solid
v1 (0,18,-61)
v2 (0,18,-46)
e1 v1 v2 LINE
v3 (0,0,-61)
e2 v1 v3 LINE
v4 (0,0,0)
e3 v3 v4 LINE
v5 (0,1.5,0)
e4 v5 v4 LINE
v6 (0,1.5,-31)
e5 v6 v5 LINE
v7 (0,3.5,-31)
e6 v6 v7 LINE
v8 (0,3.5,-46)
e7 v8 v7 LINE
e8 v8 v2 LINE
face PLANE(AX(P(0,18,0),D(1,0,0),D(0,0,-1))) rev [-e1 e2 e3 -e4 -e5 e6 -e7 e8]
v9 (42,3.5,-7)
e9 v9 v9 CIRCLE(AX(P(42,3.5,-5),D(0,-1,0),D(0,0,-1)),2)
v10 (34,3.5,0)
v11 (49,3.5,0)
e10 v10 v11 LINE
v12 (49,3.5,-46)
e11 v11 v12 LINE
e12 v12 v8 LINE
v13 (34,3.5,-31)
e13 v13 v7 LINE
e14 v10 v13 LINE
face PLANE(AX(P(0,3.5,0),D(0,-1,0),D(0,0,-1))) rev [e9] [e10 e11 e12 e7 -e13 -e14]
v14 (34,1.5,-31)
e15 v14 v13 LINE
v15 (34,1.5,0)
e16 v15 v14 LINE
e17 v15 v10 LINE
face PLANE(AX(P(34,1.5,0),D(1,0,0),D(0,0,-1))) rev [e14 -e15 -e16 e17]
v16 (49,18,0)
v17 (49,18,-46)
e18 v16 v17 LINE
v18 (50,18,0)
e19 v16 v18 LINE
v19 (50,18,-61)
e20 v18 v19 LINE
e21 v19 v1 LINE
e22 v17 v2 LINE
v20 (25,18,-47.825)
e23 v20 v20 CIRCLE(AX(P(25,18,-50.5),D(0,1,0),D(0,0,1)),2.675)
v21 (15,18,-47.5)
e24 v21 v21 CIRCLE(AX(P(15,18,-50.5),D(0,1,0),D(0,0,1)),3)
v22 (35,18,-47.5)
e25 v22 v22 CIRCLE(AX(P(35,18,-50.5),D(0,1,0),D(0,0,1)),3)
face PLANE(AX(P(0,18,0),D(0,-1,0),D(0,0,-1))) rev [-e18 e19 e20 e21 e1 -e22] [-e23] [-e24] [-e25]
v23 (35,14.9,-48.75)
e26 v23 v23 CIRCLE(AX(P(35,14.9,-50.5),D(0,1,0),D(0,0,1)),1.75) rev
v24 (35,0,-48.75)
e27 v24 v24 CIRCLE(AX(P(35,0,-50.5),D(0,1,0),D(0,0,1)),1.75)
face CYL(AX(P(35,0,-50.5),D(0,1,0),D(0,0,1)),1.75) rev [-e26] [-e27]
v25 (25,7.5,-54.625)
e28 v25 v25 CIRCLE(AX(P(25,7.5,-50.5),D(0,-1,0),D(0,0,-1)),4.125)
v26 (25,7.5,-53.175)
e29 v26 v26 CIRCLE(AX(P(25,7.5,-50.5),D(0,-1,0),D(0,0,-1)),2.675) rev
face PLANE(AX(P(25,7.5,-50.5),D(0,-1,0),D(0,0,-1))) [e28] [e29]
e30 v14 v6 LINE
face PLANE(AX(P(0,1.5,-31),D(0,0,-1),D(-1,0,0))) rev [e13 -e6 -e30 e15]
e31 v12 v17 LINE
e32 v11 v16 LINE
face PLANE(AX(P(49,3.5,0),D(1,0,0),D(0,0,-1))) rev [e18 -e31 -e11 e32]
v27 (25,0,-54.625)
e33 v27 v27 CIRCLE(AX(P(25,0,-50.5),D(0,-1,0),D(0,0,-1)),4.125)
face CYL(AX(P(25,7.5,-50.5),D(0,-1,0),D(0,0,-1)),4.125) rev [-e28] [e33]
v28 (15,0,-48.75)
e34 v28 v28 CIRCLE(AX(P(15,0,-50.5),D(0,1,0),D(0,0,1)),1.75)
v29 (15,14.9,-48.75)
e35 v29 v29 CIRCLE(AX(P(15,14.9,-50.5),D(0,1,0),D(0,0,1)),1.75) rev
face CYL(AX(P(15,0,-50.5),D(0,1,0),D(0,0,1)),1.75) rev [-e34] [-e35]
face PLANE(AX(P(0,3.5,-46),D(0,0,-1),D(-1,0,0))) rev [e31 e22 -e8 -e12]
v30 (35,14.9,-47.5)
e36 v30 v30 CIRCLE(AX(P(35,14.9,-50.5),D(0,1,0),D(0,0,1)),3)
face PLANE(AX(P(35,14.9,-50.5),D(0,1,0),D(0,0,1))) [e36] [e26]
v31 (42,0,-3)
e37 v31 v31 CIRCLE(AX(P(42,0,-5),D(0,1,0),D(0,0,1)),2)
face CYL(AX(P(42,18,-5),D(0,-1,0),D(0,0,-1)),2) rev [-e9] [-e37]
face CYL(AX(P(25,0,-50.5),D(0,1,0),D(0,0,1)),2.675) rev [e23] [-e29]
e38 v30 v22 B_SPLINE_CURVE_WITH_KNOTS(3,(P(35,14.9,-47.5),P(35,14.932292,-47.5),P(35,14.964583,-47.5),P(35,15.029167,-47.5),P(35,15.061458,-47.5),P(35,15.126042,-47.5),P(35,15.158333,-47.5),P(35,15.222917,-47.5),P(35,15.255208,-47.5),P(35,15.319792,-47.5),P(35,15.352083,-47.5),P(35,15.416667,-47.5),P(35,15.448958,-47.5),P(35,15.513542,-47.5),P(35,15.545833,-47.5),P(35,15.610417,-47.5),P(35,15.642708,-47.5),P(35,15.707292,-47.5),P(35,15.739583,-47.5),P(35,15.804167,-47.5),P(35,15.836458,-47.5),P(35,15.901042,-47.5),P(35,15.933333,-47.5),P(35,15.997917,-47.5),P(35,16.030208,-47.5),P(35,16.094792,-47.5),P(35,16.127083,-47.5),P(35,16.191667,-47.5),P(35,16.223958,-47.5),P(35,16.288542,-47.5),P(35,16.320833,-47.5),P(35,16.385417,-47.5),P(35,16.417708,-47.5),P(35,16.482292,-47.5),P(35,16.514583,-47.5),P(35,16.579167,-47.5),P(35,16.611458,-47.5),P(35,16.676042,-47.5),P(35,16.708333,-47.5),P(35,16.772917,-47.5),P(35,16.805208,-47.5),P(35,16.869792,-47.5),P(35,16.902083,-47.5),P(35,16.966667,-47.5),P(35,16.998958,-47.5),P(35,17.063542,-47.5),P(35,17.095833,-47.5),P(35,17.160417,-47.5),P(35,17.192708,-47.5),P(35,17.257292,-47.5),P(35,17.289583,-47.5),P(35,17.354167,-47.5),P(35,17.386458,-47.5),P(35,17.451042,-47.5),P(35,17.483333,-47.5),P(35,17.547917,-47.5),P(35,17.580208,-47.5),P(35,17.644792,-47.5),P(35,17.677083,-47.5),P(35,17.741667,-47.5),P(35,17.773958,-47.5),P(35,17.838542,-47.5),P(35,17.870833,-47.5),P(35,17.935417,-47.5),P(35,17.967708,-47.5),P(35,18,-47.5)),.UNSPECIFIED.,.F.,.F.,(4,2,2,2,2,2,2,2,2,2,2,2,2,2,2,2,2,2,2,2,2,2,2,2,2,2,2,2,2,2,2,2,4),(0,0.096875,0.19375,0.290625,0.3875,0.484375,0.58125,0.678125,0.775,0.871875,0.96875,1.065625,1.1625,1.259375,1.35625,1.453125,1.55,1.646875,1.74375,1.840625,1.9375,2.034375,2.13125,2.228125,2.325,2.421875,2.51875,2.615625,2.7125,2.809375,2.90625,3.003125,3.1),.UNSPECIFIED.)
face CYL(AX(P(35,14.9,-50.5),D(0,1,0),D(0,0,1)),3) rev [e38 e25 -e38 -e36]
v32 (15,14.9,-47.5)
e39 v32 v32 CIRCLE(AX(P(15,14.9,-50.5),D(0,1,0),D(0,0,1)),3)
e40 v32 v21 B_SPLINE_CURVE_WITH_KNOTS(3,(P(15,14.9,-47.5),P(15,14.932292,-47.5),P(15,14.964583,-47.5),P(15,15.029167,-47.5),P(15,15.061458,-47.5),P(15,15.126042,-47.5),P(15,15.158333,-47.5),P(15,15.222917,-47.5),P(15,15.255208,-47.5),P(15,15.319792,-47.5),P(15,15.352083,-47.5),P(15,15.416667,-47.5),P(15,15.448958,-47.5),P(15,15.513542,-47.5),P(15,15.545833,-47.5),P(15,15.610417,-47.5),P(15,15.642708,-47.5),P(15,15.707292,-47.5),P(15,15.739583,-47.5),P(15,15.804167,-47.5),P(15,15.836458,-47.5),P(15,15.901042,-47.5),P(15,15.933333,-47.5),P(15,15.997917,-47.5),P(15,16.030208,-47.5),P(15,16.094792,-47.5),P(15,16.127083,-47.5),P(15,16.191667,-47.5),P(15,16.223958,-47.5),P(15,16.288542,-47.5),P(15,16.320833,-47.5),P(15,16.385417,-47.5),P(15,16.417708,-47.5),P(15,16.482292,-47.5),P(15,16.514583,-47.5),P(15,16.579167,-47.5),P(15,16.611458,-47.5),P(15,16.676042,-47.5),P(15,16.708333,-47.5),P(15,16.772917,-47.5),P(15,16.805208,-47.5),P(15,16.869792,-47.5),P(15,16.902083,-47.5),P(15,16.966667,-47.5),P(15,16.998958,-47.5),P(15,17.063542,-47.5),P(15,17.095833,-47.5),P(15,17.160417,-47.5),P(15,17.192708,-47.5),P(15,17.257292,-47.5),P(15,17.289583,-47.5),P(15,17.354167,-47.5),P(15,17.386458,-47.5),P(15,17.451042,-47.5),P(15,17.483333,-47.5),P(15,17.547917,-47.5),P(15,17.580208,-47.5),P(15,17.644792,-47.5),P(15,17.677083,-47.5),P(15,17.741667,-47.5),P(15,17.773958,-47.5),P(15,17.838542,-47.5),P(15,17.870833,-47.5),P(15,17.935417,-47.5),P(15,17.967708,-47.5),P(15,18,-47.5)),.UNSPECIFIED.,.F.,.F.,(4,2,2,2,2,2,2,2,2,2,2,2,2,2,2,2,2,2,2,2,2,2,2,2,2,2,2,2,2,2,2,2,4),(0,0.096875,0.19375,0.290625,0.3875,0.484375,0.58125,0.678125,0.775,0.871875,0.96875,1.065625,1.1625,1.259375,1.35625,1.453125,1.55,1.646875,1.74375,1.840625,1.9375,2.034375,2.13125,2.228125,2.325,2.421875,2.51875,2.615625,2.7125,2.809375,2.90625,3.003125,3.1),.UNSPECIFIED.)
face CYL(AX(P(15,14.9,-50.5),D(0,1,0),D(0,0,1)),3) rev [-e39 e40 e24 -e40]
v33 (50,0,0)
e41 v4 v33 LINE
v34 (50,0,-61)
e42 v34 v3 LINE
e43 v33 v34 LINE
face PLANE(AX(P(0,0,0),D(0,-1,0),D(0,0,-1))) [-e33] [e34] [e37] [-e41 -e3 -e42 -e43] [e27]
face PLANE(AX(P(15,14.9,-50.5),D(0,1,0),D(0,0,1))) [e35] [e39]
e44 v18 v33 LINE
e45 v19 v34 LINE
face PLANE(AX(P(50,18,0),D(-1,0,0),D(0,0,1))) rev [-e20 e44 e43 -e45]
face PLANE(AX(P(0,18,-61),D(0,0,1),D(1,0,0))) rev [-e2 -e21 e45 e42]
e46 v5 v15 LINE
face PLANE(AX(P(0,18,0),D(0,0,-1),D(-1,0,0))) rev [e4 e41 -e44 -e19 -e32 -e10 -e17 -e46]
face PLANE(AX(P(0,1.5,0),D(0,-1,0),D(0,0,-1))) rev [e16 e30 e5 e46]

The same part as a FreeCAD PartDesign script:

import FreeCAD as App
import Part
import Sketcher

V = App.Vector


def add_polygon(sketch, points):
    """Adds a closed chain of lines whose ends are joined by coincident constraints."""
    first, n = sketch.GeometryCount, len(points)
    for a, b in zip(points, points[1:] + points[:1]):
        sketch.addGeometry(Part.LineSegment(App.Vector(*a, 0), App.Vector(*b, 0)), False)
    for i in range(n):
        sketch.addConstraint(Sketcher.Constraint("Coincident", first + i, 2, first + (i + 1) % n, 1))

doc = App.newDocument("Part")
body = doc.addObject("PartDesign::Body", "Body")

# Sketch on XZ plane
sketch1 = body.newObject("Sketcher::SketchObject", "Sketch")
sketch1.AttachmentSupport = (doc.getObject("XZ_Plane"), [""])
sketch1.MapMode = "FlatFace"
add_polygon(sketch1, [(0, -61), (0, 0), (50, 0), (50, -61)])  # lines 0-3
sketch1.addGeometry(Part.Circle(V(42, -5, 0), V(0, 0, 1), 2), False)  # 4
sketch1.addConstraint([
    Sketcher.Constraint("Vertical", 0),
    Sketcher.Constraint("Horizontal", 1),
    Sketcher.Constraint("Vertical", 2),
    Sketcher.Constraint("Horizontal", 3),
    Sketcher.Constraint("Coincident", 0, 2, -1, 1),
    Sketcher.Constraint("Diameter", 4, 4.0),
    Sketcher.Constraint("DistanceX", 1, 1, 1, 2, 50.0),
    Sketcher.Constraint("DistanceY", 0, 1, 0, 2, 61.0),
    Sketcher.Constraint("DistanceX", -1, 1, 4, 3, 42.0),
    Sketcher.Constraint("DistanceY", 4, 3, -1, 1, 5.0),
])
pad1 = body.newObject("PartDesign::Pad", "Pad")
pad1.Profile = sketch1
pad1.Length = 18
pad1.Reversed = True

# Sketch on XZ plane
sketch2 = body.newObject("Sketcher::SketchObject", "Sketch001")
sketch2.AttachmentSupport = (doc.getObject("XZ_Plane"), [""])
sketch2.MapMode = "FlatFace"
sketch2.AttachmentOffset = App.Placement(V(0, 0, -18), App.Rotation())
add_polygon(sketch2, [(0, -46), (0, 0), (49, 0), (49, -46)])  # lines 0-3
sketch2.addConstraint([
    Sketcher.Constraint("Vertical", 0),
    Sketcher.Constraint("Horizontal", 1),
    Sketcher.Constraint("Vertical", 2),
    Sketcher.Constraint("Horizontal", 3),
    Sketcher.Constraint("Coincident", 0, 2, -1, 1),
    Sketcher.Constraint("DistanceX", 1, 1, 1, 2, 49.0),
    Sketcher.Constraint("DistanceY", 0, 1, 0, 2, 46.0),
])
pocket1 = body.newObject("PartDesign::Pocket", "Pocket")
pocket1.Profile = sketch2
pocket1.Length = 14.5
pocket1.Reversed = True

# Sketch on XZ plane
sketch3 = body.newObject("Sketcher::SketchObject", "Sketch002")
sketch3.AttachmentSupport = (doc.getObject("XZ_Plane"), [""])
sketch3.MapMode = "FlatFace"
sketch3.AttachmentOffset = App.Placement(V(0, 0, -3.5), App.Rotation())
add_polygon(sketch3, [(0, -31), (0, 0), (34, 0), (34, -31)])  # lines 0-3
sketch3.addConstraint([
    Sketcher.Constraint("Vertical", 0),
    Sketcher.Constraint("Horizontal", 1),
    Sketcher.Constraint("Vertical", 2),
    Sketcher.Constraint("Horizontal", 3),
    Sketcher.Constraint("Coincident", 0, 2, -1, 1),
    Sketcher.Constraint("DistanceX", 1, 1, 1, 2, 34.0),
    Sketcher.Constraint("DistanceY", 0, 1, 0, 2, 31.0),
])
pocket2 = body.newObject("PartDesign::Pocket", "Pocket001")
pocket2.Profile = sketch3
pocket2.Length = 2
pocket2.Reversed = True

# Sketch on XZ plane
sketch4 = body.newObject("Sketcher::SketchObject", "Sketch003")
sketch4.AttachmentSupport = (doc.getObject("XZ_Plane"), [""])
sketch4.MapMode = "FlatFace"
sketch4.AttachmentOffset = App.Placement(V(0, 0, -18), App.Rotation())
sketch4.addGeometry([
    Part.Circle(V(35, -50.5, 0), V(0, 0, 1), 1.8),
    Part.Circle(V(25, -50.5, 0), V(0, 0, 1), 2.7),
    Part.Circle(V(15, -50.5, 0), V(0, 0, 1), 1.8),
], False)
sketch4.addConstraint([
    Sketcher.Constraint("Equal", 0, 2),
    Sketcher.Constraint("Horizontal", 0, 3, 1, 3),
    Sketcher.Constraint("Horizontal", 1, 3, 2, 3),
    Sketcher.Constraint("Diameter", 0, 3.5),
    Sketcher.Constraint("Diameter", 1, 5.35),
    Sketcher.Constraint("DistanceX", -1, 1, 0, 3, 35.0),
    Sketcher.Constraint("DistanceX", -1, 1, 1, 3, 25.0),
    Sketcher.Constraint("DistanceX", -1, 1, 2, 3, 15.0),
    Sketcher.Constraint("DistanceY", 0, 3, -1, 1, 50.5),
])
pocket3 = body.newObject("PartDesign::Pocket", "Pocket002")
pocket3.Profile = sketch4
pocket3.Type = "ThroughAll"
pocket3.Reversed = True

# Sketch on XZ plane
sketch5 = body.newObject("Sketcher::SketchObject", "Sketch004")
sketch5.AttachmentSupport = (doc.getObject("XZ_Plane"), [""])
sketch5.MapMode = "FlatFace"
sketch5.AttachmentOffset = App.Placement(V(0, 0, -18), App.Rotation())
sketch5.addGeometry([
    Part.Circle(V(35, -50.5, 0), V(0, 0, 1), 3),
    Part.Circle(V(15, -50.5, 0), V(0, 0, 1), 3),
], False)
sketch5.addConstraint([
    Sketcher.Constraint("Equal", 0, 1),
    Sketcher.Constraint("Horizontal", 0, 3, 1, 3),
    Sketcher.Constraint("Diameter", 0, 6.0),
    Sketcher.Constraint("DistanceX", -1, 1, 0, 3, 35.0),
    Sketcher.Constraint("DistanceX", -1, 1, 1, 3, 15.0),
    Sketcher.Constraint("DistanceY", 0, 3, -1, 1, 50.5),
])
pocket4 = body.newObject("PartDesign::Pocket", "Pocket003")
pocket4.Profile = sketch5
pocket4.Length = 3.1
pocket4.Reversed = True

# Sketch on XZ plane
sketch6 = body.newObject("Sketcher::SketchObject", "Sketch005")
sketch6.AttachmentSupport = (doc.getObject("XZ_Plane"), [""])
sketch6.MapMode = "FlatFace"
sketch6.addGeometry(Part.Circle(V(25, -50.5, 0), V(0, 0, 1), 4.1), False)
sketch6.addConstraint([
    Sketcher.Constraint("Diameter", 0, 8.25),
    Sketcher.Constraint("DistanceX", -1, 1, 0, 3, 25.0),
    Sketcher.Constraint("DistanceY", 0, 3, -1, 1, 50.5),
])
pocket5 = body.newObject("PartDesign::Pocket", "Pocket004")
pocket5.Profile = sketch6
pocket5.Length = 7.5

doc.recompute()
